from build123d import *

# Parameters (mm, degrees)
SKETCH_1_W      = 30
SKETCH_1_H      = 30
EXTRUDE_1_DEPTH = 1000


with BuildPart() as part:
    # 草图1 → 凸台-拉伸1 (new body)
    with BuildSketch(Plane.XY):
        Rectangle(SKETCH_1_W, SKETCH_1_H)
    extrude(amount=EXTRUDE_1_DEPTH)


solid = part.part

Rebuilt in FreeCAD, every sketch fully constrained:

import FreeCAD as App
import Part
import Sketcher
Q = App.Units.Quantity

doc = App.newDocument("Part")
params = doc.addObject("Spreadsheet::Sheet", "Params")
for row, (alias, value) in enumerate([
    ("sketch1_width", "30 mm"),
    ("pad1_length", "1000 mm"),
], start=1):
    params.set(f"A{row}", alias)
    params.set(f"B{row}", "=" + value)
    params.setAlias(f"B{row}", alias)

body = doc.addObject("PartDesign::Body", "Body")

# Sketch on XY plane
sketch1 = body.newObject("Sketcher::SketchObject", "Sketch")
sketch1.AttachmentSupport = (doc.getObject("XY_Plane"), [""])
sketch1.MapMode = "FlatFace"
sketch1.addGeometry([
    Part.LineSegment(App.Vector(-15, 15, 0), App.Vector(-15, -15, 0)),
    Part.LineSegment(App.Vector(-15, -15, 0), App.Vector(15, -15, 0)),
    Part.LineSegment(App.Vector(15, -15, 0), App.Vector(15, 15, 0)),
    Part.LineSegment(App.Vector(15, 15, 0), App.Vector(-15, 15, 0)),
], False)
sketch1.addConstraint([
    Sketcher.Constraint("Coincident", 0, 2, 1, 1),
    Sketcher.Constraint("Coincident", 1, 2, 2, 1),
    Sketcher.Constraint("Coincident", 2, 2, 3, 1),
    Sketcher.Constraint("Coincident", 3, 2, 0, 1),
    Sketcher.Constraint("Vertical", 0),
    Sketcher.Constraint("Horizontal", 1),
    Sketcher.Constraint("Vertical", 2),
    Sketcher.Constraint("Horizontal", 3),
    Sketcher.Constraint("Symmetric", 0, 2, 2, 2, -1, 1),
    Sketcher.Constraint("Equal", 3, 0),
    Sketcher.Constraint("DistanceX", 1, 1, 1, 2, Q("30 mm")),
])
sketch1.setExpression("Constraints[10]", "Params.sketch1_width")
pad1 = body.newObject("PartDesign::Pad", "Pad")
pad1.Profile = sketch1
pad1.setExpression("Length", "Params.pad1_length")

doc.recompute()
